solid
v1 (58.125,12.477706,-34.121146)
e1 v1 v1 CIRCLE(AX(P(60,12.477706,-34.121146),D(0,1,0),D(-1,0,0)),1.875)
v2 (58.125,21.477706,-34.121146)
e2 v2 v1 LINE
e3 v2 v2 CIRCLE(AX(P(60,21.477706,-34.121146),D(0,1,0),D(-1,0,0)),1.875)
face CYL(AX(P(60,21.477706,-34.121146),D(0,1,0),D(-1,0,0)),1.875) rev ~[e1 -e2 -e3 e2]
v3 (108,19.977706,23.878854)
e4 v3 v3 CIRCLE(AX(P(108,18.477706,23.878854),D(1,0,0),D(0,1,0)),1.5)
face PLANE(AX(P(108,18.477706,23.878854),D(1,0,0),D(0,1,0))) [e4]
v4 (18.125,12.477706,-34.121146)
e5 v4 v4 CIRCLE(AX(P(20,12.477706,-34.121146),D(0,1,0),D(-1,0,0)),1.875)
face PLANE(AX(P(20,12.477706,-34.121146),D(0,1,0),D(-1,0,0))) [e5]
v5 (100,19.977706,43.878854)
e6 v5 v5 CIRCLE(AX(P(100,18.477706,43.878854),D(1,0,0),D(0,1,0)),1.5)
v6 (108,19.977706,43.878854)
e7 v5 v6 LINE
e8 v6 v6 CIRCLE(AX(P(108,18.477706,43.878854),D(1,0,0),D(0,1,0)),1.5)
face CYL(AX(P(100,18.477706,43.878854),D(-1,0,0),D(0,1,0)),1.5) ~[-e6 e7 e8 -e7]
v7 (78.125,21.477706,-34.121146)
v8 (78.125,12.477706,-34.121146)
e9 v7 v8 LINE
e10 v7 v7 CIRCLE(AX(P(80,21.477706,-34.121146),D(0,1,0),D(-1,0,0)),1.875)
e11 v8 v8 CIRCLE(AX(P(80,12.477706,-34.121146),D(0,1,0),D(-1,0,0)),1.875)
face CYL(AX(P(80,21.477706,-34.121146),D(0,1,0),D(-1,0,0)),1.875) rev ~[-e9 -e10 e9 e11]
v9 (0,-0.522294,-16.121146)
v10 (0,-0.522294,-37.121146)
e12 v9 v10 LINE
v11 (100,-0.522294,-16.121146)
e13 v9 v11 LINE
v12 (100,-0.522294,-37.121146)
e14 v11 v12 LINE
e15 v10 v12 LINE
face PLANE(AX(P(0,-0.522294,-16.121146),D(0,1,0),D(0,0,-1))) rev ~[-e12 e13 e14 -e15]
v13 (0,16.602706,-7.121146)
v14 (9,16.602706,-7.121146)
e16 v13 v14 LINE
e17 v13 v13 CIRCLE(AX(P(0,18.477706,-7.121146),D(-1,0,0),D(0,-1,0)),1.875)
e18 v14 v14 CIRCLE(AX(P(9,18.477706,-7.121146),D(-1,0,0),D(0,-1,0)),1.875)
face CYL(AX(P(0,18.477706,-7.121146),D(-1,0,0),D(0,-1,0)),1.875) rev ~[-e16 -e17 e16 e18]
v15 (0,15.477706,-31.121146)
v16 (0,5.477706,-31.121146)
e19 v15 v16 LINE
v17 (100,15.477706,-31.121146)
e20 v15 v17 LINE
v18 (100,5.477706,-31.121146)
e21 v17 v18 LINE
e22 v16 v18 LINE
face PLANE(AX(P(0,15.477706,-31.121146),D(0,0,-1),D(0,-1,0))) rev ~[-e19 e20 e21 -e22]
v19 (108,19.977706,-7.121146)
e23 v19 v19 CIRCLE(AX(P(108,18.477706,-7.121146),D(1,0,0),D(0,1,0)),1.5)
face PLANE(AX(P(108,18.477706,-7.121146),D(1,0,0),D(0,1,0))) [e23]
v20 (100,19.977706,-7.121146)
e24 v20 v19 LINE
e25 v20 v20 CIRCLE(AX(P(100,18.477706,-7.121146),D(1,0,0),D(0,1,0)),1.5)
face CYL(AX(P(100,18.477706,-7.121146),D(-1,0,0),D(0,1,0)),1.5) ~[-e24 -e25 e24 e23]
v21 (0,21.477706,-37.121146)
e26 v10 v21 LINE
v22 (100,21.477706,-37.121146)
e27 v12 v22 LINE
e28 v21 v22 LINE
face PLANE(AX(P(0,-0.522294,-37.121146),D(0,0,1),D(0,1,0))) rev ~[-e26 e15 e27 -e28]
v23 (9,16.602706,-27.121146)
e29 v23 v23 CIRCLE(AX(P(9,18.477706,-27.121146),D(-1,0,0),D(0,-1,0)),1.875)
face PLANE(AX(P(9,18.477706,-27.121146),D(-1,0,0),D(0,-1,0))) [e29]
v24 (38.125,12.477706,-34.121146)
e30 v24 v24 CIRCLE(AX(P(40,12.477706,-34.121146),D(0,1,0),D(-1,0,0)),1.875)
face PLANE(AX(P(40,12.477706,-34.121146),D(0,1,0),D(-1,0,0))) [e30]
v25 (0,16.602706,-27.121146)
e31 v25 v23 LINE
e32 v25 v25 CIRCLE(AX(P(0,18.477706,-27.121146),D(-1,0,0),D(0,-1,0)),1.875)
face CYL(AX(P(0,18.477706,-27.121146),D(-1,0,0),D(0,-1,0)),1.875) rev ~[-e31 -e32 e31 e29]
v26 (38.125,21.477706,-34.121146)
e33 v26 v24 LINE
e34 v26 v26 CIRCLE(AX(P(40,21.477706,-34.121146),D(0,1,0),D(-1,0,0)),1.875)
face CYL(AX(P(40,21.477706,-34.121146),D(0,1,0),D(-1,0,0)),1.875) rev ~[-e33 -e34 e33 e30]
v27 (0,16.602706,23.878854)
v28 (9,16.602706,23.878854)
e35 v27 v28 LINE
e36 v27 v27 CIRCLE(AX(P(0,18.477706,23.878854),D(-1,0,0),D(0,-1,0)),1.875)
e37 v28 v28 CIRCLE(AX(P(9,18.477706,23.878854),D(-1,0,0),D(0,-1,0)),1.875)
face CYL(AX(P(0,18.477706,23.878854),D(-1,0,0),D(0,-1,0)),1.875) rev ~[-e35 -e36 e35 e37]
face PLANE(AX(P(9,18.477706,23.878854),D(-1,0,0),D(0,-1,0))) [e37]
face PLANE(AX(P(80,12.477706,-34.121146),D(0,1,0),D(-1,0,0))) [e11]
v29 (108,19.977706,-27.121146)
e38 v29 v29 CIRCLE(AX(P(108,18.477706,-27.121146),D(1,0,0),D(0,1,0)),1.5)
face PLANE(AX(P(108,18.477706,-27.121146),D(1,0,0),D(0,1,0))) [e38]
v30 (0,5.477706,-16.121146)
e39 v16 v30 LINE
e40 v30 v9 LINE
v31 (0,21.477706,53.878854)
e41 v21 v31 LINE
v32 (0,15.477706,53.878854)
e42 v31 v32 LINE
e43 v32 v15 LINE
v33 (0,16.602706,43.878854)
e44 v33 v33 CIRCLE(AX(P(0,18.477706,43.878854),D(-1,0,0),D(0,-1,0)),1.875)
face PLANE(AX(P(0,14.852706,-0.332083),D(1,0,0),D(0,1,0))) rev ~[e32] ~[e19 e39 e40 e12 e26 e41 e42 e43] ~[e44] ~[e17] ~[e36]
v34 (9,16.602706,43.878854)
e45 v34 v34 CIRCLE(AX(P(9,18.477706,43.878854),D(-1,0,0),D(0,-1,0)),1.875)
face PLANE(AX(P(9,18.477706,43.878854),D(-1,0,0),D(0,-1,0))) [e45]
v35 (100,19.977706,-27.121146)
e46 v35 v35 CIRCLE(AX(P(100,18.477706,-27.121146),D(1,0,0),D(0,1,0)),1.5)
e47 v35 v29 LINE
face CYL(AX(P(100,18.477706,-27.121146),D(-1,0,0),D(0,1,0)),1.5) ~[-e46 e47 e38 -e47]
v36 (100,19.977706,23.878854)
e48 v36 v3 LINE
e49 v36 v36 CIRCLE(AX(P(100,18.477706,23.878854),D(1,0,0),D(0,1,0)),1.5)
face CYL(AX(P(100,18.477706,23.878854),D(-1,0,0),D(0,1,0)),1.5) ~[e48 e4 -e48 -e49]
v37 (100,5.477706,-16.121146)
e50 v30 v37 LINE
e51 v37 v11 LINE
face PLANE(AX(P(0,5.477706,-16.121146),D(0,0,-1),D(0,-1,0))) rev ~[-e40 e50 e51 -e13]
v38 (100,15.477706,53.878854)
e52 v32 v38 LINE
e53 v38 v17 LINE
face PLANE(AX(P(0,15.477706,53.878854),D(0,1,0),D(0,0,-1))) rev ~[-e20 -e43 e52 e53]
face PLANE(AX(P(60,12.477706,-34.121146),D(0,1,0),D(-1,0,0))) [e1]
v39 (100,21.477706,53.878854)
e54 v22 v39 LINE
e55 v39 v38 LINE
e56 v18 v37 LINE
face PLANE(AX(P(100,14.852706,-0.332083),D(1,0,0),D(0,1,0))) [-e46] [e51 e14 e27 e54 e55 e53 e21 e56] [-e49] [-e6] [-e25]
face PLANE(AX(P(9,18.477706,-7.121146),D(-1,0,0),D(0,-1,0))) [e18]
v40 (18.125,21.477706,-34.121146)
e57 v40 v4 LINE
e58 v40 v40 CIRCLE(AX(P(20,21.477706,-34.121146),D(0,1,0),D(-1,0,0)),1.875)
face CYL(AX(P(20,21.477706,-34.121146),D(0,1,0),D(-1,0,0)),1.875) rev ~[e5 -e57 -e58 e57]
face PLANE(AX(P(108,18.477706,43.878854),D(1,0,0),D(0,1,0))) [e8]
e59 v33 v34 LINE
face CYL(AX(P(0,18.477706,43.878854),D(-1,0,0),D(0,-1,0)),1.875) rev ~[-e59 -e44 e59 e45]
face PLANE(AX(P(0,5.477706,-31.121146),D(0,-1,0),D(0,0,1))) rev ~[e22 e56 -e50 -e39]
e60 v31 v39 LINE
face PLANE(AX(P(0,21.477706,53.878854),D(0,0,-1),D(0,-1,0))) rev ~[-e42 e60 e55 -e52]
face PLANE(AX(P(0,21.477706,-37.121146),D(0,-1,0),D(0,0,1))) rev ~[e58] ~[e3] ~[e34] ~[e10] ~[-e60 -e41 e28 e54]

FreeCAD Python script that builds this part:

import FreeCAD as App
import Part
import Sketcher

V = App.Vector
Q = App.Units.Quantity


def add_polygon(sketch, points):
    """Adds a closed chain of lines whose ends are joined by coincident constraints."""
    first, n = sketch.GeometryCount, len(points)
    for a, b in zip(points, points[1:] + points[:1]):
        sketch.addGeometry(Part.LineSegment(App.Vector(*a, 0), App.Vector(*b, 0)), False)
    for i in range(n):
        sketch.addConstraint(Sketcher.Constraint("Coincident", first + i, 2, first + (i + 1) % n, 1))

doc = App.newDocument("Part")
params = doc.addObject("Spreadsheet::Sheet", "Params")
for row, (alias, value) in enumerate([
    ("sketch1_width", "6 mm"),
    ("sketch1_width2", "10 mm"),
    ("sketch1_height", "91 mm"),
    ("sketch1_height2", "85 mm"),
    ("sketch1_height3", "15 mm"),
    ("pad1_length", "100 mm"),
    ("sketch2_diameter", "3 mm"),
    ("pad2_length", "8 mm"),
    ("sketch3_diameter", "3.75 mm"),
    ("pocket1_length", "9 mm"),
    ("sketch4_diameter", "3.75 mm"),
    ("pocket2_length", "9 mm"),
], start=1):
    params.set(f"A{row}", alias)
    params.set(f"B{row}", "=" + value)
    params.setAlias(f"B{row}", alias)

body = doc.addObject("PartDesign::Body", "Body")

# Sketch on YZ plane
sketch1 = doc.addObject("Sketcher::SketchObject", "Sketch")
body.addObject(sketch1)
sketch1.AttachmentSupport = (doc.YZ_Plane, [""])
sketch1.MapMode = "FlatFace"
add_polygon(sketch1, [(21.477706, -37.121146), (21.477706, 53.878854), (15.477706, 53.878854), (15.477706, -31.121146), (5.477706, -31.121146), (5.477706, -16.121146), (-0.522294, -16.121146), (-0.522294, -37.121146)])  # lines 0-7
sketch1.addConstraint([
    Sketcher.Constraint("Vertical", 0),
    Sketcher.Constraint("Horizontal", 1),
    Sketcher.Constraint("Vertical", 2),
    Sketcher.Constraint("Horizontal", 3),
    Sketcher.Constraint("Vertical", 4),
    Sketcher.Constraint("Horizontal", 5),
    Sketcher.Constraint("Vertical", 6),
    Sketcher.Constraint("Horizontal", 7),
    Sketcher.Constraint("Equal", 1, 5),
    Sketcher.Constraint("DistanceX", 1, 2, 1, 1, Q("6 mm")),
    Sketcher.Constraint("DistanceX", 3, 2, 3, 1, Q("10 mm")),
    Sketcher.Constraint("DistanceY", 0, 1, 0, 2, Q("91 mm")),
    Sketcher.Constraint("DistanceY", 2, 2, 2, 1, Q("85 mm")),
    Sketcher.Constraint("DistanceY", 4, 1, 4, 2, Q("15 mm")),
    Sketcher.Constraint("DistanceX", -1, 1, 0, 2, Q("21.477706 mm")),
    Sketcher.Constraint("DistanceY", -1, 1, 0, 2, Q("53.878854 mm")),
])
sketch1.setExpression("Constraints[17]", "Params.sketch1_width")
sketch1.setExpression("Constraints[18]", "Params.sketch1_width2")
sketch1.setExpression("Constraints[19]", "Params.sketch1_height")
sketch1.setExpression("Constraints[20]", "Params.sketch1_height2")
sketch1.setExpression("Constraints[21]", "Params.sketch1_height3")
pad1 = doc.addObject("PartDesign::Pad", "Pad")
body.addObject(pad1)
pad1.Profile = sketch1
pad1.setExpression("Length", "Params.pad1_length")

# Sketch on YZ plane
sketch2 = doc.addObject("Sketcher::SketchObject", "Sketch001")
body.addObject(sketch2)
sketch2.AttachmentSupport = (doc.YZ_Plane, [""])
sketch2.MapMode = "FlatFace"
sketch2.AttachmentOffset = App.Placement(V(0, 0, 100), App.Rotation())
sketch2.addGeometry([
    Part.Circle(V(18.477706, 43.878854, 0), V(0, 0, 1), 1.5),
    Part.Circle(V(18.477706, 23.878854, 0), V(0, 0, 1), 1.5),
    Part.Circle(V(18.477706, -7.121146, 0), V(0, 0, 1), 1.5),
    Part.Circle(V(18.477706, -27.121146, 0), V(0, 0, 1), 1.5),
], False)
sketch2.addConstraint([
    Sketcher.Constraint("Equal", 0, 1),
    Sketcher.Constraint("Equal", 1, 2),
    Sketcher.Constraint("Equal", 2, 3),
    Sketcher.Constraint("Vertical", 0, 3, 1, 3),
    Sketcher.Constraint("Vertical", 1, 3, 2, 3),
    Sketcher.Constraint("Vertical", 2, 3, 3, 3),
    Sketcher.Constraint("Diameter", 0, Q("3 mm")),
    Sketcher.Constraint("DistanceY", 1, 3, 0, 3, Q("20 mm")),
    Sketcher.Constraint("DistanceY", 2, 3, 1, 3, Q("31 mm")),
    Sketcher.Constraint("DistanceY", 3, 3, 2, 3, Q("20 mm")),
    Sketcher.Constraint("DistanceX", -1, 1, 0, 3, Q("18.477706 mm")),
    Sketcher.Constraint("DistanceY", -1, 1, 0, 3, Q("43.878854 mm")),
])
sketch2.setExpression("Constraints[6]", "Params.sketch2_diameter")
pad2 = doc.addObject("PartDesign::Pad", "Pad001")
body.addObject(pad2)
pad2.Profile = sketch2
pad2.setExpression("Length", "Params.pad2_length")

# Sketch on YZ plane
sketch3 = doc.addObject("Sketcher::SketchObject", "Sketch002")
body.addObject(sketch3)
sketch3.AttachmentSupport = (doc.YZ_Plane, [""])
sketch3.MapMode = "FlatFace"
sketch3.addGeometry([
    Part.Circle(V(18.477706, 23.878854, 0), V(0, 0, 1), 1.875),
    Part.Circle(V(18.477706, 43.878854, 0), V(0, 0, 1), 1.875),
    Part.Circle(V(18.477706, -7.121146, 0), V(0, 0, 1), 1.875),
    Part.Circle(V(18.477706, -27.121146, 0), V(0, 0, 1), 1.875),
], False)
sketch3.addConstraint([
    Sketcher.Constraint("Equal", 0, 1),
    Sketcher.Constraint("Equal", 1, 2),
    Sketcher.Constraint("Equal", 2, 3),
    Sketcher.Constraint("Vertical", 0, 3, 1, 3),
    Sketcher.Constraint("Vertical", 1, 3, 2, 3),
    Sketcher.Constraint("Vertical", 2, 3, 3, 3),
    Sketcher.Constraint("Diameter", 0, Q("3.75 mm")),
    Sketcher.Constraint("DistanceY", 0, 3, 1, 3, Q("20 mm")),
    Sketcher.Constraint("DistanceY", 2, 3, 0, 3, Q("31 mm")),
    Sketcher.Constraint("DistanceY", 3, 3, 2, 3, Q("20 mm")),
    Sketcher.Constraint("DistanceX", -1, 1, 0, 3, Q("18.477706 mm")),
    Sketcher.Constraint("DistanceY", -1, 1, 0, 3, Q("23.878854 mm")),
])
sketch3.setExpression("Constraints[6]", "Params.sketch3_diameter")
pocket1 = doc.addObject("PartDesign::Pocket", "Pocket")
body.addObject(pocket1)
pocket1.Profile = sketch3
pocket1.setExpression("Length", "Params.pocket1_length")
pocket1.Reversed = True

# Sketch on XZ plane
sketch4 = doc.addObject("Sketcher::SketchObject", "Sketch003")
body.addObject(sketch4)
sketch4.AttachmentSupport = (doc.XZ_Plane, [""])
sketch4.MapMode = "FlatFace"
sketch4.AttachmentOffset = App.Placement(V(0, 0, -21.477706), App.Rotation())
sketch4.addGeometry([
    Part.Circle(V(80, -34.121146, 0), V(0, 0, 1), 1.875),
    Part.Circle(V(60, -34.121146, 0), V(0, 0, 1), 1.875),
    Part.Circle(V(40, -34.121146, 0), V(0, 0, 1), 1.875),
    Part.Circle(V(20, -34.121146, 0), V(0, 0, 1), 1.875),
], False)
sketch4.addConstraint([
    Sketcher.Constraint("Equal", 0, 1),
    Sketcher.Constraint("Equal", 1, 2),
    Sketcher.Constraint("Equal", 2, 3),
    Sketcher.Constraint("Horizontal", 0, 3, 1, 3),
    Sketcher.Constraint("Horizontal", 1, 3, 2, 3),
    Sketcher.Constraint("Horizontal", 2, 3, 3, 3),
    Sketcher.Constraint("Diameter", 0, Q("3.75 mm")),
    Sketcher.Constraint("DistanceX", -1, 1, 0, 3, Q("80 mm")),
    Sketcher.Constraint("DistanceX", -1, 1, 1, 3, Q("60 mm")),
    Sketcher.Constraint("DistanceX", -1, 1, 2, 3, Q("40 mm")),
    Sketcher.Constraint("DistanceX", -1, 1, 3, 3, Q("20 mm")),
    Sketcher.Constraint("DistanceY", 0, 3, -1, 1, Q("34.121146 mm")),
])
sketch4.setExpression("Constraints[6]", "Params.sketch4_diameter")
pocket2 = doc.addObject("PartDesign::Pocket", "Pocket001")
body.addObject(pocket2)
pocket2.Profile = sketch4
pocket2.setExpression("Length", "Params.pocket2_length")
pocket2.Reversed = True

doc.recompute()
